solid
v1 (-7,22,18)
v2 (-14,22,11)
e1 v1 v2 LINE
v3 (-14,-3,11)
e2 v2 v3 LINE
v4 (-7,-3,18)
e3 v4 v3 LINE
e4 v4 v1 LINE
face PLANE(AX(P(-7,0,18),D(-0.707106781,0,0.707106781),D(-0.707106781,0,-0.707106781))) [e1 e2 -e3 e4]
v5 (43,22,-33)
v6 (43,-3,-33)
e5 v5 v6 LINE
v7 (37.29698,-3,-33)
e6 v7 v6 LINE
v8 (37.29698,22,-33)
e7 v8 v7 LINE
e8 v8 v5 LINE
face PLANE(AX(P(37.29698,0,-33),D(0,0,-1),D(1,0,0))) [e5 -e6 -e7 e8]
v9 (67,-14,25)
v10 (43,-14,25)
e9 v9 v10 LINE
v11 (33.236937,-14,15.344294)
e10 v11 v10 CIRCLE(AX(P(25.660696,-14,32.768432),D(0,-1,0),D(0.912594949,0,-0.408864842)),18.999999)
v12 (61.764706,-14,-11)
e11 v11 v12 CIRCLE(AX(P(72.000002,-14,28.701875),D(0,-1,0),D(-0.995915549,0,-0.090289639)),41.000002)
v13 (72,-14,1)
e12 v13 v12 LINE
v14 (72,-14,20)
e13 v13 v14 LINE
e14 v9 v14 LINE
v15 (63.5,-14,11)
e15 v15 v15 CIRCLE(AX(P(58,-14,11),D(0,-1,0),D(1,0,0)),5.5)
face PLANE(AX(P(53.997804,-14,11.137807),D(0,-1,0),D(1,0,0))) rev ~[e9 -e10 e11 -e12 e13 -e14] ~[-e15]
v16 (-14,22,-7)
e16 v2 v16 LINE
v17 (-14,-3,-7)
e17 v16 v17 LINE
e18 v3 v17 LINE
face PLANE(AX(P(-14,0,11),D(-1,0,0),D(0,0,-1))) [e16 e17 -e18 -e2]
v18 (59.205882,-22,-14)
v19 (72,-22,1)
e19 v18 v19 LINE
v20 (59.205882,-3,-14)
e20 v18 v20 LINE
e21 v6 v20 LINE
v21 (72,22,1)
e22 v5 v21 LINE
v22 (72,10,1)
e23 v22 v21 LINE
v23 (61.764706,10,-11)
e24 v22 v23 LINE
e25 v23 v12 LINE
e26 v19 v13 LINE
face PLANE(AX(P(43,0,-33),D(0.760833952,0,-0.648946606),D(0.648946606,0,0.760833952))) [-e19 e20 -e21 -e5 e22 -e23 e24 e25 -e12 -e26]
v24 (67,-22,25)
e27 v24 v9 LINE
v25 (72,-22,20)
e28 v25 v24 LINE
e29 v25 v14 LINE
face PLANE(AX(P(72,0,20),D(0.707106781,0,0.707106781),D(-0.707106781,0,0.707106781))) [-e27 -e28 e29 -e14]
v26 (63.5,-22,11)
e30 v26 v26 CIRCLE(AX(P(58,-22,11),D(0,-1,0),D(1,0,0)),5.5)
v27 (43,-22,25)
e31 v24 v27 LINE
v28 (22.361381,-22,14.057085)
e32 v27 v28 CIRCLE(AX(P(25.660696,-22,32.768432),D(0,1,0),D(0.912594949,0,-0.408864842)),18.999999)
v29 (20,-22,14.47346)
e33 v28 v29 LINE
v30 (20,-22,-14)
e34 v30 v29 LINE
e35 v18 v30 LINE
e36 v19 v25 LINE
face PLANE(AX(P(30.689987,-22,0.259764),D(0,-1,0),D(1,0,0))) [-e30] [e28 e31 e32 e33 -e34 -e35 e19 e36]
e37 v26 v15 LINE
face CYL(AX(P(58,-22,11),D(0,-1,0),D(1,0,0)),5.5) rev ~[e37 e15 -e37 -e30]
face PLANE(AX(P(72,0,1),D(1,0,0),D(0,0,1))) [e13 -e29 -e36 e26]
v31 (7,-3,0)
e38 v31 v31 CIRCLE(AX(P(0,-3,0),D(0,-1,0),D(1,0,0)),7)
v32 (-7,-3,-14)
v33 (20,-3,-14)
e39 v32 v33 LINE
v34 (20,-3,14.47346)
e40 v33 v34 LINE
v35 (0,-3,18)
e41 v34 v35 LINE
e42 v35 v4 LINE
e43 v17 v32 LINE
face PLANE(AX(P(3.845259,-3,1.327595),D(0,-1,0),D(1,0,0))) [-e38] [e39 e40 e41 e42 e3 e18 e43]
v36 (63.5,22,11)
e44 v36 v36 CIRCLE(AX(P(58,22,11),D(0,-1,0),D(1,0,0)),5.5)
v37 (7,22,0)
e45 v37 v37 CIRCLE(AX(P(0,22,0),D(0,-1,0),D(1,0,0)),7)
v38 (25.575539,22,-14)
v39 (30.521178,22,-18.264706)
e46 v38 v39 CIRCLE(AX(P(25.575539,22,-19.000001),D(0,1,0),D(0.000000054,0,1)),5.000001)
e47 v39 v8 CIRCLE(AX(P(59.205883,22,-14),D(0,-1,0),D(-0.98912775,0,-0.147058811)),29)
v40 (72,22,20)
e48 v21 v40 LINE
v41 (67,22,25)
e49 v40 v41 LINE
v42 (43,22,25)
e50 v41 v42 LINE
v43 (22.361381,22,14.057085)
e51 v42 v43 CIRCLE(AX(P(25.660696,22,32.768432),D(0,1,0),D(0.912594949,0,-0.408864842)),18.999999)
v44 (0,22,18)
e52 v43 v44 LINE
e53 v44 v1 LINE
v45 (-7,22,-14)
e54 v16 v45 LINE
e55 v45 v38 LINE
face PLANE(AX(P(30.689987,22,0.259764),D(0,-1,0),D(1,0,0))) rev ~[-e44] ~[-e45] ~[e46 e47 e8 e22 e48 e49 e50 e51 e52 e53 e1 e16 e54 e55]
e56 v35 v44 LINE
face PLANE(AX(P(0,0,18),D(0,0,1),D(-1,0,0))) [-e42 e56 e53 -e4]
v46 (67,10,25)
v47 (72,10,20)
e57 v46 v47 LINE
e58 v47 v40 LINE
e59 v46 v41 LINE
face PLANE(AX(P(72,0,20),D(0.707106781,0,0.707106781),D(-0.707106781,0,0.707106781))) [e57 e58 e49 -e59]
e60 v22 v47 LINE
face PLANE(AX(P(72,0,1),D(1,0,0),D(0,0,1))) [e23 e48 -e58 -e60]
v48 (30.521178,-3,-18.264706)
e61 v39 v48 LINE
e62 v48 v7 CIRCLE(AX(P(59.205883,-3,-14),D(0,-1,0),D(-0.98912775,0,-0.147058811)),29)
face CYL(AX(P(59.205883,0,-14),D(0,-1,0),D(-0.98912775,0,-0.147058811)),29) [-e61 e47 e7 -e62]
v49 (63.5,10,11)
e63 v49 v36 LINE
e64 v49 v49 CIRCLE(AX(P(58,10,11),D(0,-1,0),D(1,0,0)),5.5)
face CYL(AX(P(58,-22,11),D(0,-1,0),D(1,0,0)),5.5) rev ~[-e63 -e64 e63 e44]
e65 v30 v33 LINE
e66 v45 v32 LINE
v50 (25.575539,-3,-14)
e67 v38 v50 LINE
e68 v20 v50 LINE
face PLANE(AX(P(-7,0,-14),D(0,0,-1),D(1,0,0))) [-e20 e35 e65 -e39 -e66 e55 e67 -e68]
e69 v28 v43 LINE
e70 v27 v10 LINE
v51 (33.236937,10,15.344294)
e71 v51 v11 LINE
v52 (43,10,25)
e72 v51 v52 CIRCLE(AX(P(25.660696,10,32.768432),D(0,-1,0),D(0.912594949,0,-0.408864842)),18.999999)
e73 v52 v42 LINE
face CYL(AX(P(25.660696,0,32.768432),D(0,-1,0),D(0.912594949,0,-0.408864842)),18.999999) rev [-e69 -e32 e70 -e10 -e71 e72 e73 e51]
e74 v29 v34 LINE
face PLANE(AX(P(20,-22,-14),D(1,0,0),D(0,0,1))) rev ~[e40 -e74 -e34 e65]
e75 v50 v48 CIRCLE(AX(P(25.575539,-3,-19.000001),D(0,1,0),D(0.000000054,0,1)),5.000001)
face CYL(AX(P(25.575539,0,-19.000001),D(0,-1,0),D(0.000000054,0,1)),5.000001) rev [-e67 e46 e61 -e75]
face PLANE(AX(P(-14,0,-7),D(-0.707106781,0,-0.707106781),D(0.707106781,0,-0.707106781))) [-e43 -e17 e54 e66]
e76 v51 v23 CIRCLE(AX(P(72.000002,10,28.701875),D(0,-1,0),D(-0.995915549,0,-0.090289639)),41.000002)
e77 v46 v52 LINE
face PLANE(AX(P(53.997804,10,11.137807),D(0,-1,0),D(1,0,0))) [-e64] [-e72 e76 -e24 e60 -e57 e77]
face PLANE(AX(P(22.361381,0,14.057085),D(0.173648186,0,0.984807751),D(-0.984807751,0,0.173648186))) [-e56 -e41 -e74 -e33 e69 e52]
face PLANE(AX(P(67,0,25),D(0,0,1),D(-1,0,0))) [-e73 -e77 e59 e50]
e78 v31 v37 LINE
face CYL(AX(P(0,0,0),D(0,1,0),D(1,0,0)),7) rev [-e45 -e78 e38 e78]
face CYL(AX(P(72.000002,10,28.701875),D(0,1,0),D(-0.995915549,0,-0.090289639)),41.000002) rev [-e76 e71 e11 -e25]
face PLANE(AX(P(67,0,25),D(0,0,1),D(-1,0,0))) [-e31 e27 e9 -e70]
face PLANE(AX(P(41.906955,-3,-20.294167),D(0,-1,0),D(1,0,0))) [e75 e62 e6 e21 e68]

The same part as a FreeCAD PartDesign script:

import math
import FreeCAD as App
import Part
import Sketcher
Q = App.Units.Quantity

doc = App.newDocument("Part")
params = doc.addObject("Spreadsheet::Sheet", "Params")
for row, (alias, value) in enumerate([
    ("sketch1_diameter", "14 mm"),
    ("sketch1_radius", "5.000001 mm"),
    ("sketch1_radius2", "29 mm"),
    ("sketch1_radius3", "18.999999 mm"),
    ("sketch1_width", "24 mm"),
    ("pad1_length", "44 mm"),
    ("sketch2_diameter", "14 mm"),
    ("sketch2_radius", "5.000001 mm"),
    ("sketch2_radius2", "29 mm"),
    ("sketch2_width", "7 mm"),
    ("sketch2_width2", "27 mm"),
    ("pocket1_length", "19 mm"),
    ("sketch3_diameter", "11 mm"),
    ("sketch4_height", "25 mm"),
    ("pocket3_length", "24 mm"),
], start=1):
    params.set(f"A{row}", alias)
    params.set(f"B{row}", "=" + value)
    params.setAlias(f"B{row}", alias)

body = doc.addObject("PartDesign::Body", "Body")

sketch1 = body.newObject("Sketcher::SketchObject", "Sketch")
sketch1.AttachmentSupport = (doc.getObject("XZ_Plane"), [""])
sketch1.MapMode = "FlatFace"
sketch1.addGeometry([
    Part.LineSegment(App.Vector(-7, 18, 0), App.Vector(-14, 11, 0)),
    Part.LineSegment(App.Vector(-14, 11, 0), App.Vector(-14, -7, 0)),
    Part.LineSegment(App.Vector(-14, -7, 0), App.Vector(-7, -14, 0)),
    Part.LineSegment(App.Vector(-7, -14, 0), App.Vector(25.575539, -14, 0)),
    Part.ArcOfCircle(Part.Circle(App.Vector(25.575539, -19.000001, 0), App.Vector(0, 0, 1), 5.000001), math.radians(8.456524), math.radians(89.999997)),
    Part.ArcOfCircle(Part.Circle(App.Vector(59.205883, -14, 0), App.Vector(0, 0, 1), 29), math.radians(-171.543481), math.radians(-139.067277)),
    Part.LineSegment(App.Vector(37.29698, -33, 0), App.Vector(43, -33, 0)),
    Part.LineSegment(App.Vector(43, -33, 0), App.Vector(72, 1, 0)),
    Part.LineSegment(App.Vector(72, 1, 0), App.Vector(72, 20, 0)),
    Part.LineSegment(App.Vector(72, 20, 0), App.Vector(67, 25, 0)),
    Part.LineSegment(App.Vector(67, 25, 0), App.Vector(43, 25, 0)),
    Part.ArcOfCircle(Part.Circle(App.Vector(25.660696, 32.768432, 0), App.Vector(0, 0, 1), 18.999999), math.radians(-100), math.radians(-24.133546)),
    Part.LineSegment(App.Vector(22.361381, 14.057085, 0), App.Vector(0, 18, 0)),
    Part.LineSegment(App.Vector(0, 18, 0), App.Vector(-7, 18, 0)),
    Part.Circle(App.Vector(0, 0, 0), App.Vector(0, 0, 1), 7),
], False)
sketch1.addConstraint([
    Sketcher.Constraint("Coincident", 0, 2, 1, 1),
    Sketcher.Constraint("Coincident", 1, 2, 2, 1),
    Sketcher.Constraint("Coincident", 2, 2, 3, 1),
    Sketcher.Constraint("Tangent", 3, 2, 4, 2),
    Sketcher.Constraint("Tangent", 4, 1, 5, 1),
    Sketcher.Constraint("Coincident", 5, 2, 6, 1),
    Sketcher.Constraint("Coincident", 6, 2, 7, 1),
    Sketcher.Constraint("Coincident", 7, 2, 8, 1),
    Sketcher.Constraint("Coincident", 8, 2, 9, 1),
    Sketcher.Constraint("Coincident", 9, 2, 10, 1),
    Sketcher.Constraint("Coincident", 10, 2, 11, 2),
    Sketcher.Constraint("Tangent", 11, 1, 12, 1),
    Sketcher.Constraint("Coincident", 12, 2, 13, 1),
    Sketcher.Constraint("Coincident", 13, 2, 0, 1),
    Sketcher.Constraint("Vertical", 1),
    Sketcher.Constraint("Horizontal", 3),
    Sketcher.Constraint("Horizontal", 6),
    Sketcher.Constraint("Vertical", 8),
    Sketcher.Constraint("Horizontal", 10),
    Sketcher.Constraint("Horizontal", 13),
    Sketcher.Constraint("Coincident", 14, 3, -1, 1),
    Sketcher.Constraint("PointOnObject", 12, 2, -2),
    Sketcher.Constraint("Perpendicular", 0, 2),
    Sketcher.Constraint("Parallel", 2, 9),
    Sketcher.Constraint("Horizontal", 5, 3, 2, 2),
    Sketcher.Constraint("Vertical", 6, 2, 10, 2),
    Sketcher.Constraint("Vertical", 2, 2, 13, 2),
    Sketcher.Constraint("Equal", 0, 2),
    Sketcher.Constraint("Diameter", 14, Q("14 mm")),
    Sketcher.Constraint("Radius", 4, Q("5.000001 mm")),
    Sketcher.Constraint("Radius", 5, Q("29 mm")),
    Sketcher.Constraint("Radius", 11, Q("18.999999 mm")),
    Sketcher.Constraint("DistanceX", 10, 2, 10, 1, Q("24 mm")),
    Sketcher.Constraint("DistanceX", 13, 2, 13, 1, Q("7 mm")),
    Sketcher.Constraint("DistanceY", 1, 2, 1, 1, Q("18 mm")),
    Sketcher.Constraint("DistanceY", 8, 1, 8, 2, Q("19 mm")),
    Sketcher.Constraint("Angle", 12, Q("169.999999 deg")),
    Sketcher.Constraint("DistanceY", 4, 3, -1, 1, Q("19.000001 mm")),
    Sketcher.Constraint("DistanceX", 0, 2, -1, 1, Q("14 mm")),
    Sketcher.Constraint("DistanceY", 5, 2, -1, 1, Q("33 mm")),
    Sketcher.Constraint("DistanceX", -1, 1, 6, 2, Q("43 mm")),
    Sketcher.Constraint("DistanceX", -1, 1, 7, 2, Q("72 mm")),
    Sketcher.Constraint("DistanceY", -1, 1, 7, 2, Q("1 mm")),
    Sketcher.Constraint("DistanceX", 3, 1, 3, 2, Q("32.575539 mm")),
])
sketch1.setExpression("Constraints[28]", "Params.sketch1_diameter")
sketch1.setExpression("Constraints[29]", "Params.sketch1_radius")
sketch1.setExpression("Constraints[30]", "Params.sketch1_radius2")
sketch1.setExpression("Constraints[31]", "Params.sketch1_radius3")
sketch1.setExpression("Constraints[32]", "Params.sketch1_width")
pad1 = body.newObject("PartDesign::Pad", "Pad")
pad1.Profile = sketch1
pad1.setExpression("Length", "Params.pad1_length")
pad1.Midplane = True

sketch2 = body.newObject("Sketcher::SketchObject", "Sketch001")
sketch2.AttachmentSupport = (doc.getObject("XZ_Plane"), [""])
sketch2.MapMode = "FlatFace"
sketch2.AttachmentOffset = App.Placement(App.Vector(0, 0, 22), App.Rotation())
sketch2.addGeometry([
    Part.LineSegment(App.Vector(20, -14, 0), App.Vector(20, 14.47346, 0)),
    Part.LineSegment(App.Vector(20, 14.47346, 0), App.Vector(0, 18, 0)),
    Part.LineSegment(App.Vector(0, 18, 0), App.Vector(-7, 18, 0)),
    Part.LineSegment(App.Vector(-7, 18, 0), App.Vector(-14, 11, 0)),
    Part.LineSegment(App.Vector(-14, 11, 0), App.Vector(-14, -7, 0)),
    Part.LineSegment(App.Vector(-14, -7, 0), App.Vector(-7, -14, 0)),
    Part.LineSegment(App.Vector(-7, -14, 0), App.Vector(20, -14, 0)),
    Part.Circle(App.Vector(0, 0, 0), App.Vector(0, 0, 1), 7),
    Part.LineSegment(App.Vector(59.205882, -14, 0), App.Vector(25.575539, -14, 0)),
    Part.ArcOfCircle(Part.Circle(App.Vector(25.575539, -19.000001, 0), App.Vector(0, 0, 1), 5.000001), math.radians(8.456524), math.radians(89.999997)),
    Part.ArcOfCircle(Part.Circle(App.Vector(59.205883, -14, 0), App.Vector(0, 0, 1), 29), math.radians(-171.543481), math.radians(-139.067277)),
    Part.LineSegment(App.Vector(37.29698, -33, 0), App.Vector(43, -33, 0)),
    Part.LineSegment(App.Vector(43, -33, 0), App.Vector(59.205882, -14, 0)),
], False)
sketch2.addConstraint([
    Sketcher.Constraint("Coincident", 0, 2, 1, 1),
    Sketcher.Constraint("Coincident", 1, 2, 2, 1),
    Sketcher.Constraint("Coincident", 2, 2, 3, 1),
    Sketcher.Constraint("Coincident", 3, 2, 4, 1),
    Sketcher.Constraint("Coincident", 4, 2, 5, 1),
    Sketcher.Constraint("Coincident", 5, 2, 6, 1),
    Sketcher.Constraint("Coincident", 6, 2, 0, 1),
    Sketcher.Constraint("Tangent", 8, 2, 9, 2),
    Sketcher.Constraint("Tangent", 9, 1, 10, 1),
    Sketcher.Constraint("Coincident", 10, 2, 11, 1),
    Sketcher.Constraint("Coincident", 11, 2, 12, 1),
    Sketcher.Constraint("Coincident", 12, 2, 8, 1),
    Sketcher.Constraint("Vertical", 0),
    Sketcher.Constraint("Horizontal", 2),
    Sketcher.Constraint("Vertical", 4),
    Sketcher.Constraint("Horizontal", 6),
    Sketcher.Constraint("Horizontal", 8),
    Sketcher.Constraint("Horizontal", 11),
    Sketcher.Constraint("Coincident", 7, 3, -1, 1),
    Sketcher.Constraint("Coincident", 12, 2, 10, 3),
    Sketcher.Constraint("PointOnObject", 1, 2, -2),
    Sketcher.Constraint("Perpendicular", 3, 5),
    Sketcher.Constraint("Horizontal", 10, 3, 5, 2),
    Sketcher.Constraint("Vertical", 2, 2, 5, 2),
    Sketcher.Constraint("Equal", 3, 5),
    Sketcher.Constraint("Diameter", 7, Q("14 mm")),
    Sketcher.Constraint("Radius", 9, Q("5.000001 mm")),
    Sketcher.Constraint("Radius", 10, Q("29 mm")),
    Sketcher.Constraint("DistanceX", 2, 2, 2, 1, Q("7 mm")),
    Sketcher.Constraint("DistanceX", 6, 1, 6, 2, Q("27 mm")),
    Sketcher.Constraint("DistanceY", 4, 2, 4, 1, Q("18 mm")),
    Sketcher.Constraint("Angle", 1, Q("169.999999 deg")),
    Sketcher.Constraint("DistanceY", 9, 3, -1, 1, Q("19.000001 mm")),
    Sketcher.Constraint("DistanceY", -1, 1, 1, 2, Q("18 mm")),
    Sketcher.Constraint("DistanceY", 10, 2, -1, 1, Q("33 mm")),
    Sketcher.Constraint("DistanceX", -1, 1, 11, 2, Q("43 mm")),
    Sketcher.Constraint("DistanceX", 11, 1, 11, 2, Q("5.70302 mm")),
])
sketch2.setExpression("Constraints[25]", "Params.sketch2_diameter")
sketch2.setExpression("Constraints[26]", "Params.sketch2_radius")
sketch2.setExpression("Constraints[27]", "Params.sketch2_radius2")
sketch2.setExpression("Constraints[28]", "Params.sketch2_width")
sketch2.setExpression("Constraints[29]", "Params.sketch2_width2")
pocket1 = body.newObject("PartDesign::Pocket", "Pocket")
pocket1.Profile = sketch2
pocket1.setExpression("Length", "Params.pocket1_length")

sketch3 = body.newObject("Sketcher::SketchObject", "Sketch002")
sketch3.AttachmentSupport = (doc.getObject("XZ_Plane"), [""])
sketch3.MapMode = "FlatFace"
sketch3.AttachmentOffset = App.Placement(App.Vector(0, 0, 22), App.Rotation())
sketch3.addGeometry(Part.Circle(App.Vector(58, 11, 0), App.Vector(0, 0, 1), 5.5), False)
sketch3.addConstraint([
    Sketcher.Constraint("Diameter", 0, Q("11 mm")),
    Sketcher.Constraint("DistanceX", -1, 1, 0, 3, Q("58 mm")),
    Sketcher.Constraint("DistanceY", -1, 1, 0, 3, Q("11 mm")),
])
sketch3.setExpression("Constraints[0]", "Params.sketch3_diameter")
pocket2 = body.newObject("PartDesign::Pocket", "Pocket001")
pocket2.Profile = sketch3
pocket2.Type = "ThroughAll"

sketch4 = body.newObject("Sketcher::SketchObject", "Sketch003")
sketch4.AttachmentSupport = (doc.getObject("XZ_Plane"), [""])
sketch4.MapMode = "FlatFace"
sketch4.AttachmentOffset = App.Placement(App.Vector(0, 0, -10), App.Rotation())
sketch4.addGeometry([
    Part.LineSegment(App.Vector(72, 25, 0), App.Vector(31.167462, 25, 0)),
    Part.ArcOfCircle(Part.Circle(App.Vector(72.000002, 28.701875, 0), App.Vector(0, 0, 1), 41.000002), math.radians(-174.81973), math.radians(-104.45629)),
    Part.LineSegment(App.Vector(61.764706, -11, 0), App.Vector(72, 0, 0)),
    Part.LineSegment(App.Vector(72, 0, 0), App.Vector(72, 25, 0)),
], False)
sketch4.addConstraint([
    Sketcher.Constraint("Coincident", 0, 2, 1, 1),
    Sketcher.Constraint("Coincident", 1, 2, 2, 1),
    Sketcher.Constraint("Coincident", 2, 2, 3, 1),
    Sketcher.Constraint("Coincident", 3, 2, 0, 1),
    Sketcher.Constraint("Horizontal", 0),
    Sketcher.Constraint("Vertical", 3),
    Sketcher.Constraint("PointOnObject", 2, 2, -1),
    Sketcher.Constraint("DistanceY", 3, 1, 3, 2, Q("25 mm")),
    Sketcher.Constraint("DistanceX", -1, 1, 1, 3, Q("72.000002 mm")),
    Sketcher.Constraint("DistanceY", 1, 2, -1, 1, Q("11 mm")),
    Sketcher.Constraint("DistanceX", -1, 1, 2, 2, Q("72 mm")),
    Sketcher.Constraint("Radius", 1, Q("41.000002 mm")),
    Sketcher.Constraint("DistanceX", 0, 2, 0, 1, Q("40.832538 mm")),
])
sketch4.setExpression("Constraints[7]", "Params.sketch4_height")
pocket3 = body.newObject("PartDesign::Pocket", "Pocket002")
pocket3.Profile = sketch4
pocket3.setExpression("Length", "Params.pocket3_length")
pocket3.Reversed = True

doc.recompute()
